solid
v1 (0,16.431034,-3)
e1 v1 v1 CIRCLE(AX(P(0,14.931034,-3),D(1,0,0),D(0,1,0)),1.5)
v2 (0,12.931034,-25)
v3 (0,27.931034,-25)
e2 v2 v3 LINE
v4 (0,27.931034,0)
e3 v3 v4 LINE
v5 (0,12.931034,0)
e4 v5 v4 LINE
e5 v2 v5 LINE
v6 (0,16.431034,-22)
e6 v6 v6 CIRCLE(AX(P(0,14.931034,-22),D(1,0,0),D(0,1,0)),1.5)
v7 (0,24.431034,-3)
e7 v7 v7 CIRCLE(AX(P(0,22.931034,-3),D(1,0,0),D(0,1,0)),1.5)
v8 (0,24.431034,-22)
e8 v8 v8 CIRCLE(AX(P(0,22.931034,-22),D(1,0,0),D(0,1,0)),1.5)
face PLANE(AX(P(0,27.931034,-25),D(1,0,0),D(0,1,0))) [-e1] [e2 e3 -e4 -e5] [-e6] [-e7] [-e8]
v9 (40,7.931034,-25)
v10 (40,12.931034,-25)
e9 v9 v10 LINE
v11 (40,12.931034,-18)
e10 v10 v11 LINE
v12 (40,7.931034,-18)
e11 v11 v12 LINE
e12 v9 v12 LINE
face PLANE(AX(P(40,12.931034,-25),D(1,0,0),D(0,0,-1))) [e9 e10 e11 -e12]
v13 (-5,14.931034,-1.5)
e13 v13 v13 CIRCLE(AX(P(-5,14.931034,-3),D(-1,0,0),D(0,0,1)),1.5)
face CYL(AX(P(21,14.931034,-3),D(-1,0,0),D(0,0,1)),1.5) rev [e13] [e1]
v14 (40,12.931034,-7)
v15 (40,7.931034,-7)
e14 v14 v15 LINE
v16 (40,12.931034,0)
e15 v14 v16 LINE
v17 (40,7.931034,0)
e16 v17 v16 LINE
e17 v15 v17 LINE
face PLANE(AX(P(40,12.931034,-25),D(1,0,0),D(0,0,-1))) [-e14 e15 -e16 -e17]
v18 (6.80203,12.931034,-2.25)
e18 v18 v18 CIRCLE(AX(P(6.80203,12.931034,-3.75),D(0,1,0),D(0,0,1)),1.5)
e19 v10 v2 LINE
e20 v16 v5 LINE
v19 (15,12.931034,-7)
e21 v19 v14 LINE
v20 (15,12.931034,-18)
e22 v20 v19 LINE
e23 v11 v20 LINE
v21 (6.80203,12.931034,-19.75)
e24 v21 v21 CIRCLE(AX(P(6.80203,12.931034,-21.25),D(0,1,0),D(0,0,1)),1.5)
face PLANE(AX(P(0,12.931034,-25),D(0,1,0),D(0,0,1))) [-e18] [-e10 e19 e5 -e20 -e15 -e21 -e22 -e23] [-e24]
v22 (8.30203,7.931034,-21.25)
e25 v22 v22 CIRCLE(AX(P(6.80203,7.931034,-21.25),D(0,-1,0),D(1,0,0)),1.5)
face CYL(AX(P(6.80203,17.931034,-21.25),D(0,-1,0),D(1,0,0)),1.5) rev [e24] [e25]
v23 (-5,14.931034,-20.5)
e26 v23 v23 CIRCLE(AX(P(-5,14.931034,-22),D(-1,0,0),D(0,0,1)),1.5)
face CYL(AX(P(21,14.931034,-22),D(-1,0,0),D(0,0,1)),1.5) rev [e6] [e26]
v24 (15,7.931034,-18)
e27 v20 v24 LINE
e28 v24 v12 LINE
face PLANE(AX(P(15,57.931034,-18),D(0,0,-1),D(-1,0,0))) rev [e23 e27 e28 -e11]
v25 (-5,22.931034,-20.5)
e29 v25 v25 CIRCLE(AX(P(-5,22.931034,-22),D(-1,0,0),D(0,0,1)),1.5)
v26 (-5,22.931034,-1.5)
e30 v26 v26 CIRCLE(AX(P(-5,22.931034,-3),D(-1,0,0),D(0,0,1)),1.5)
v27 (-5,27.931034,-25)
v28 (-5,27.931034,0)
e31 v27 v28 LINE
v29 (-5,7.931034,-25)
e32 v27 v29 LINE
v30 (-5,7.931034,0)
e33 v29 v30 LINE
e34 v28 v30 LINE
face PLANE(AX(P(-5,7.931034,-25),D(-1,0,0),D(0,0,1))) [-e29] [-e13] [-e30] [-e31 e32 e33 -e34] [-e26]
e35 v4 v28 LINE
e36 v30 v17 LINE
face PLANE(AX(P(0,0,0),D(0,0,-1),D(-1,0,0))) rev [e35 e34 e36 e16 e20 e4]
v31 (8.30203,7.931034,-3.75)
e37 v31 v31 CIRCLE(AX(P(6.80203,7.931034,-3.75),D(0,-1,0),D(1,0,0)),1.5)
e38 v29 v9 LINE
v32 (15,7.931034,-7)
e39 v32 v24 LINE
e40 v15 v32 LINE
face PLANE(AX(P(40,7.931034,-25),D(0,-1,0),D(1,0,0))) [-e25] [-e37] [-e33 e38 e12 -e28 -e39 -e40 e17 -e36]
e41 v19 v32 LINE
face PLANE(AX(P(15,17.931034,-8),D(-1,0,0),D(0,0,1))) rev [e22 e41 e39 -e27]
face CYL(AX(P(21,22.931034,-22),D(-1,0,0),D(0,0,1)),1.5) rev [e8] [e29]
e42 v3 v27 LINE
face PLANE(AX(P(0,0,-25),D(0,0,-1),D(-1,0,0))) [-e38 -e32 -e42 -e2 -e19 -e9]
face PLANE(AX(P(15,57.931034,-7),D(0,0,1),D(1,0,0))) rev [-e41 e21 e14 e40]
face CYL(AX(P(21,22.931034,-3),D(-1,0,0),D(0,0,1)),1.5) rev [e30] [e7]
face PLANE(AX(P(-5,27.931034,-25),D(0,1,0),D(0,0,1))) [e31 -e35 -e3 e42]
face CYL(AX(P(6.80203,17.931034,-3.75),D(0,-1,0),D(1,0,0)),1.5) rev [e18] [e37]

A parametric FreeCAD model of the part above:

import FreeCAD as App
import Part
import Sketcher

V = App.Vector
Q = App.Units.Quantity

doc = App.newDocument("Part")
params = doc.addObject("Spreadsheet::Sheet", "Params")
for row, (alias, value) in enumerate([
    ("sketch1_width", "5 mm"),
    ("sketch1_width2", "45 mm"),
    ("sketch1_height", "15 mm"),
    ("pad1_length", "25 mm"),
    ("sketch2_diameter", "3 mm"),
    ("pocket1_length", "26 mm"),
    ("sketch3_diameter", "3 mm"),
    ("sketch3_width", "25 mm"),
    ("sketch3_height", "9 mm"),
    ("pocket2_length", "10 mm"),
    ("sketch4_width", "25 mm"),
    ("sketch4_height", "1 mm"),
    ("pocket3_length", "50 mm"),
], start=1):
    params.set(f"A{row}", alias)
    params.set(f"B{row}", "=" + value)
    params.setAlias(f"B{row}", alias)

body = doc.addObject("PartDesign::Body", "Body")

sketch1 = body.newObject("Sketcher::SketchObject", "Sketch")
sketch1.AttachmentSupport = (doc.getObject("XY_Plane"), [""])
sketch1.MapMode = "FlatFace"
sketch1.addGeometry([
    Part.LineSegment(V(0, 12.931034, 0), V(0, 27.931034, 0)),
    Part.LineSegment(V(0, 27.931034, 0), V(-5, 27.931034, 0)),
    Part.LineSegment(V(-5, 27.931034, 0), V(-5, 7.931034, 0)),
    Part.LineSegment(V(-5, 7.931034, 0), V(40, 7.931034, 0)),
    Part.LineSegment(V(40, 7.931034, 0), V(40, 12.931034, 0)),
    Part.LineSegment(V(40, 12.931034, 0), V(0, 12.931034, 0)),
], False)
sketch1.addConstraint([
    Sketcher.Constraint("Coincident", 0, 2, 1, 1),
    Sketcher.Constraint("Coincident", 1, 2, 2, 1),
    Sketcher.Constraint("Coincident", 2, 2, 3, 1),
    Sketcher.Constraint("Coincident", 3, 2, 4, 1),
    Sketcher.Constraint("Coincident", 4, 2, 5, 1),
    Sketcher.Constraint("Coincident", 5, 2, 0, 1),
    Sketcher.Constraint("Vertical", 0),
    Sketcher.Constraint("Horizontal", 1),
    Sketcher.Constraint("Vertical", 2),
    Sketcher.Constraint("Horizontal", 3),
    Sketcher.Constraint("Vertical", 4),
    Sketcher.Constraint("Horizontal", 5),
    Sketcher.Constraint("PointOnObject", 0, 2, -2),
    Sketcher.Constraint("Equal", 1, 4),
    Sketcher.Constraint("DistanceX", 1, 2, 1, 1, Q("5 mm")),
    Sketcher.Constraint("DistanceX", 3, 1, 3, 2, Q("45 mm")),
    Sketcher.Constraint("DistanceY", 0, 1, 0, 2, Q("15 mm")),
    Sketcher.Constraint("DistanceY", -1, 1, 0, 2, Q("27.931034 mm")),
])
sketch1.setExpression("Constraints[14]", "Params.sketch1_width")
sketch1.setExpression("Constraints[15]", "Params.sketch1_width2")
sketch1.setExpression("Constraints[16]", "Params.sketch1_height")
pad1 = body.newObject("PartDesign::Pad", "Pad")
pad1.Profile = sketch1
pad1.setExpression("Length", "Params.pad1_length")
pad1.Reversed = True

sketch2 = body.newObject("Sketcher::SketchObject", "Sketch001")
sketch2.AttachmentSupport = (doc.getObject("YZ_Plane"), [""])
sketch2.MapMode = "FlatFace"
sketch2.AttachmentOffset = App.Placement(V(0, 0, -5), App.Rotation())
sketch2.addGeometry([
    Part.Circle(V(22.931034, -22, 0), V(0, 0, 1), 1.5),
    Part.Circle(V(22.931034, -3, 0), V(0, 0, 1), 1.5),
    Part.Circle(V(14.931034, -3, 0), V(0, 0, 1), 1.5),
    Part.Circle(V(14.931034, -22, 0), V(0, 0, 1), 1.5),
], False)
sketch2.addConstraint([
    Sketcher.Constraint("Equal", 0, 1),
    Sketcher.Constraint("Equal", 1, 2),
    Sketcher.Constraint("Equal", 2, 3),
    Sketcher.Constraint("Horizontal", 1, 3, 2, 3),
    Sketcher.Constraint("Horizontal", 0, 3, 3, 3),
    Sketcher.Constraint("Vertical", 0, 3, 1, 3),
    Sketcher.Constraint("Vertical", 2, 3, 3, 3),
    Sketcher.Constraint("Diameter", 0, Q("3 mm")),
    Sketcher.Constraint("DistanceY", 0, 3, -1, 1, Q("22 mm")),
    Sketcher.Constraint("DistanceY", 1, 3, -1, 1, Q("3 mm")),
    Sketcher.Constraint("DistanceX", 2, 3, 1, 3, Q("8 mm")),
    Sketcher.Constraint("DistanceX", -1, 1, 0, 3, Q("22.931034 mm")),
])
sketch2.setExpression("Constraints[7]", "Params.sketch2_diameter")
pocket1 = body.newObject("PartDesign::Pocket", "Pocket")
pocket1.Profile = sketch2
pocket1.setExpression("Length", "Params.pocket1_length")
pocket1.Reversed = True

sketch3 = body.newObject("Sketcher::SketchObject", "Sketch002")
sketch3.AttachmentSupport = (doc.getObject("XZ_Plane"), [""])
sketch3.MapMode = "FlatFace"
sketch3.AttachmentOffset = App.Placement(V(0, 0, -7.931034), App.Rotation())
sketch3.addGeometry([
    Part.Circle(V(6.80203, -3.75, 0), V(0, 0, 1), 1.5),
    Part.Circle(V(6.80203, -21.25, 0), V(0, 0, 1), 1.5),
    Part.LineSegment(V(15, -8, 0), V(15, -17, 0)),
    Part.LineSegment(V(15, -17, 0), V(40, -17, 0)),
    Part.LineSegment(V(40, -17, 0), V(40, -8, 0)),
    Part.LineSegment(V(40, -8, 0), V(15, -8, 0)),
], False)
sketch3.addConstraint([
    Sketcher.Constraint("Coincident", 2, 2, 3, 1),
    Sketcher.Constraint("Coincident", 3, 2, 4, 1),
    Sketcher.Constraint("Coincident", 4, 2, 5, 1),
    Sketcher.Constraint("Coincident", 5, 2, 2, 1),
    Sketcher.Constraint("Vertical", 2),
    Sketcher.Constraint("Horizontal", 3),
    Sketcher.Constraint("Vertical", 4),
    Sketcher.Constraint("Horizontal", 5),
    Sketcher.Constraint("Equal", 0, 1),
    Sketcher.Constraint("Vertical", 0, 3, 1, 3),
    Sketcher.Constraint("Diameter", 0, Q("3 mm")),
    Sketcher.Constraint("DistanceX", 3, 1, 3, 2, Q("25 mm")),
    Sketcher.Constraint("DistanceY", 2, 2, 2, 1, Q("9 mm")),
    Sketcher.Constraint("DistanceX", -1, 1, 2, 2, Q("15 mm")),
    Sketcher.Constraint("DistanceY", 2, 2, -1, 1, Q("17 mm")),
    Sketcher.Constraint("DistanceY", 1, 3, 0, 3, Q("17.5 mm")),
    Sketcher.Constraint("DistanceY", 0, 3, -1, 1, Q("3.75 mm")),
    Sketcher.Constraint("DistanceX", -1, 1, 0, 3, Q("6.80203 mm")),
])
sketch3.setExpression("Constraints[10]", "Params.sketch3_diameter")
sketch3.setExpression("Constraints[11]", "Params.sketch3_width")
sketch3.setExpression("Constraints[12]", "Params.sketch3_height")
pocket2 = body.newObject("PartDesign::Pocket", "Pocket001")
pocket2.Profile = sketch3
pocket2.setExpression("Length", "Params.pocket2_length")

sketch4 = body.newObject("Sketcher::SketchObject", "Sketch003")
sketch4.AttachmentSupport = (doc.getObject("XZ_Plane"), [""])
sketch4.MapMode = "FlatFace"
sketch4.AttachmentOffset = App.Placement(V(0, 0, -7.931034), App.Rotation())
sketch4.addGeometry([
    Part.LineSegment(V(15, -7, 0), V(15, -8, 0)),
    Part.LineSegment(V(15, -8, 0), V(40, -8, 0)),
    Part.LineSegment(V(40, -8, 0), V(40, -7, 0)),
    Part.LineSegment(V(40, -7, 0), V(15, -7, 0)),
    Part.LineSegment(V(15, -17, 0), V(15, -18, 0)),
    Part.LineSegment(V(15, -18, 0), V(40, -18, 0)),
    Part.LineSegment(V(40, -18, 0), V(40, -17, 0)),
    Part.LineSegment(V(40, -17, 0), V(15, -17, 0)),
], False)
sketch4.addConstraint([
    Sketcher.Constraint("Coincident", 0, 2, 1, 1),
    Sketcher.Constraint("Coincident", 1, 2, 2, 1),
    Sketcher.Constraint("Coincident", 2, 2, 3, 1),
    Sketcher.Constraint("Coincident", 3, 2, 0, 1),
    Sketcher.Constraint("Coincident", 4, 2, 5, 1),
    Sketcher.Constraint("Coincident", 5, 2, 6, 1),
    Sketcher.Constraint("Coincident", 6, 2, 7, 1),
    Sketcher.Constraint("Coincident", 7, 2, 4, 1),
    Sketcher.Constraint("Vertical", 0),
    Sketcher.Constraint("Horizontal", 1),
    Sketcher.Constraint("Vertical", 2),
    Sketcher.Constraint("Horizontal", 3),
    Sketcher.Constraint("Vertical", 4),
    Sketcher.Constraint("Horizontal", 5),
    Sketcher.Constraint("Vertical", 6),
    Sketcher.Constraint("Horizontal", 7),
    Sketcher.Constraint("Vertical", 3, 2, 4, 2),
    Sketcher.Constraint("Vertical", 2, 2, 5, 2),
    Sketcher.Constraint("Equal", 2, 4),
    Sketcher.Constraint("DistanceX", 1, 1, 1, 2, Q("25 mm")),
    Sketcher.Constraint("DistanceY", 0, 2, 0, 1, Q("1 mm")),
    Sketcher.Constraint("DistanceX", -1, 1, 0, 2, Q("15 mm")),
    Sketcher.Constraint("DistanceY", 0, 2, -1, 1, Q("8 mm")),
    Sketcher.Constraint("DistanceY", 4, 2, -1, 1, Q("18 mm")),
])
sketch4.setExpression("Constraints[19]", "Params.sketch4_width")
sketch4.setExpression("Constraints[20]", "Params.sketch4_height")
pocket3 = body.newObject("PartDesign::Pocket", "Pocket002")
pocket3.Profile = sketch4
pocket3.setExpression("Length", "Params.pocket3_length")

doc.recompute()
